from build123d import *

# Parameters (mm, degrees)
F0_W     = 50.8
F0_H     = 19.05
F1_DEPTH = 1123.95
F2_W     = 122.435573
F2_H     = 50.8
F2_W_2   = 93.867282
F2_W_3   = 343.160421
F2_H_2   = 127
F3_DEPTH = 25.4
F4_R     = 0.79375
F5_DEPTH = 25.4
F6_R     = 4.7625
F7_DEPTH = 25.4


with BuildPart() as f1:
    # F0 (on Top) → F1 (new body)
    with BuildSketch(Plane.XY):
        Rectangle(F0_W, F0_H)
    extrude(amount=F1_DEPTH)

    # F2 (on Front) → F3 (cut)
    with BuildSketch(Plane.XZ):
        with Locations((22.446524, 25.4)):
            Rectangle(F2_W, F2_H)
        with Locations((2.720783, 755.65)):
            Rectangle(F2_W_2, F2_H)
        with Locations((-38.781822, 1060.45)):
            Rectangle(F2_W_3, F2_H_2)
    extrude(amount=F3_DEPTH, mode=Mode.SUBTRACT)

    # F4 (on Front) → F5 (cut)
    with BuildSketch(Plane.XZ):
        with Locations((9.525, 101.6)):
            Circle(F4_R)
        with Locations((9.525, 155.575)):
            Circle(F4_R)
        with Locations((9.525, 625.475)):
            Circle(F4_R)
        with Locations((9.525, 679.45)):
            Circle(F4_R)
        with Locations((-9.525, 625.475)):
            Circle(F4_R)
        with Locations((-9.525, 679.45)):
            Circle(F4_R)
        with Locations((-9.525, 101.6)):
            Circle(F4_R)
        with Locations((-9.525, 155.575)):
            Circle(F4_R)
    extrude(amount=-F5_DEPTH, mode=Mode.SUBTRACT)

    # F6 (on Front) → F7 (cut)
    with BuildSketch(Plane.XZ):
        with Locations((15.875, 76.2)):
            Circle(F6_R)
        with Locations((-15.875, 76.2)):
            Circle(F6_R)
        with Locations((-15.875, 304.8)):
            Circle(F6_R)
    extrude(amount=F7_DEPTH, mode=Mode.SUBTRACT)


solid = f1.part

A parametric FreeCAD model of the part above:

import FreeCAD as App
import Part
import Sketcher
from FreeCAD import Vector
Q = App.Units.Quantity

doc = App.newDocument("Part")
body = doc.addObject("PartDesign::Body", "Body")

sketch1 = body.newObject("Sketcher::SketchObject", "Sketch")
sketch1.AttachmentSupport = (doc.getObject("XY_Plane"), [""])
sketch1.MapMode = "FlatFace"
sketch1.addGeometry(Part.LineSegment(Vector(-25, 10, 0), Vector(-25, -10, 0)), False)
sketch1.addGeometry(Part.LineSegment(Vector(-25, -10, 0), Vector(25, -10, 0)), False)
sketch1.addGeometry(Part.LineSegment(Vector(25, -10, 0), Vector(25, 10, 0)), False)
sketch1.addGeometry(Part.LineSegment(Vector(25, 10, 0), Vector(-25, 10, 0)), False)
sketch1.addConstraint(Sketcher.Constraint("Coincident", 0, 2, 1, 1))
sketch1.addConstraint(Sketcher.Constraint("Coincident", 1, 2, 2, 1))
sketch1.addConstraint(Sketcher.Constraint("Coincident", 2, 2, 3, 1))
sketch1.addConstraint(Sketcher.Constraint("Coincident", 3, 2, 0, 1))
sketch1.addConstraint(Sketcher.Constraint("Vertical", 0))
sketch1.addConstraint(Sketcher.Constraint("Horizontal", 1))
sketch1.addConstraint(Sketcher.Constraint("Vertical", 2))
sketch1.addConstraint(Sketcher.Constraint("Horizontal", 3))
sketch1.addConstraint(Sketcher.Constraint("Symmetric", 0, 2, 2, 2, -1, 1))
sketch1.addConstraint(Sketcher.Constraint("DistanceX", 1, 1, 1, 2, Q("2 in")))
sketch1.addConstraint(Sketcher.Constraint("DistanceY", 0, 2, 0, 1, Q("0.75 in")))
pad1 = body.newObject("PartDesign::Pad", "Pad")
pad1.Profile = sketch1
pad1.Length = Q("44.25 in")

sketch2 = body.newObject("Sketcher::SketchObject", "Sketch001")
sketch2.AttachmentSupport = (doc.getObject("XZ_Plane"), [""])
sketch2.MapMode = "FlatFace"
sketch2.addGeometry(Part.LineSegment(Vector(-39, 51, 0), Vector(-39, 0, 0)), False)
sketch2.addGeometry(Part.LineSegment(Vector(-39, 0, 0), Vector(84, 0, 0)), False)
sketch2.addGeometry(Part.LineSegment(Vector(84, 0, 0), Vector(84, 51, 0)), False)
sketch2.addGeometry(Part.LineSegment(Vector(84, 51, 0), Vector(-39, 51, 0)), False)
sketch2.addGeometry(Part.LineSegment(Vector(-44, 781, 0), Vector(-44, 730, 0)), False)
sketch2.addGeometry(Part.LineSegment(Vector(-44, 730, 0), Vector(50, 730, 0)), False)
sketch2.addGeometry(Part.LineSegment(Vector(50, 730, 0), Vector(50, 781, 0)), False)
sketch2.addGeometry(Part.LineSegment(Vector(50, 781, 0), Vector(-44, 781, 0)), False)
sketch2.addGeometry(Part.LineSegment(Vector(-210, 1124, 0), Vector(-210, 997, 0)), False)
sketch2.addGeometry(Part.LineSegment(Vector(-210, 997, 0), Vector(133, 997, 0)), False)
sketch2.addGeometry(Part.LineSegment(Vector(133, 997, 0), Vector(133, 1124, 0)), False)
sketch2.addGeometry(Part.LineSegment(Vector(133, 1124, 0), Vector(-210, 1124, 0)), False)
sketch2.addConstraint(Sketcher.Constraint("Coincident", 0, 2, 1, 1))
sketch2.addConstraint(Sketcher.Constraint("Coincident", 1, 2, 2, 1))
sketch2.addConstraint(Sketcher.Constraint("Coincident", 2, 2, 3, 1))
sketch2.addConstraint(Sketcher.Constraint("Coincident", 3, 2, 0, 1))
sketch2.addConstraint(Sketcher.Constraint("Coincident", 4, 2, 5, 1))
sketch2.addConstraint(Sketcher.Constraint("Coincident", 5, 2, 6, 1))
sketch2.addConstraint(Sketcher.Constraint("Coincident", 6, 2, 7, 1))
sketch2.addConstraint(Sketcher.Constraint("Coincident", 7, 2, 4, 1))
sketch2.addConstraint(Sketcher.Constraint("Coincident", 8, 2, 9, 1))
sketch2.addConstraint(Sketcher.Constraint("Coincident", 9, 2, 10, 1))
sketch2.addConstraint(Sketcher.Constraint("Coincident", 10, 2, 11, 1))
sketch2.addConstraint(Sketcher.Constraint("Coincident", 11, 2, 8, 1))
sketch2.addConstraint(Sketcher.Constraint("Vertical", 0))
sketch2.addConstraint(Sketcher.Constraint("Horizontal", 1))
sketch2.addConstraint(Sketcher.Constraint("Vertical", 2))
sketch2.addConstraint(Sketcher.Constraint("Horizontal", 3))
sketch2.addConstraint(Sketcher.Constraint("Vertical", 4))
sketch2.addConstraint(Sketcher.Constraint("Horizontal", 5))
sketch2.addConstraint(Sketcher.Constraint("Vertical", 6))
sketch2.addConstraint(Sketcher.Constraint("Horizontal", 7))
sketch2.addConstraint(Sketcher.Constraint("Vertical", 8))
sketch2.addConstraint(Sketcher.Constraint("Horizontal", 9))
sketch2.addConstraint(Sketcher.Constraint("Vertical", 10))
sketch2.addConstraint(Sketcher.Constraint("Horizontal", 11))
sketch2.addConstraint(Sketcher.Constraint("PointOnObject", 0, 2, -1))
sketch2.addConstraint(Sketcher.Constraint("Equal", 2, 4))
sketch2.addConstraint(Sketcher.Constraint("DistanceY", 0, 2, 0, 1, Q("2 in")))
sketch2.addConstraint(Sketcher.Constraint("DistanceY", 8, 2, 8, 1, Q("5 in")))
sketch2.addConstraint(Sketcher.Constraint("DistanceY", 7, 2, 8, 2, Q("8.5 in")))
sketch2.addConstraint(Sketcher.Constraint("DistanceY", -1, 1, 4, 2, Q("28.75 in")))
sketch2.addConstraint(Sketcher.Constraint("DistanceX", 5, 1, 5, 2, Q("93.867282 mm")))
sketch2.addConstraint(Sketcher.Constraint("DistanceX", 9, 1, 9, 2, Q("343.160421 mm")))
sketch2.addConstraint(Sketcher.Constraint("DistanceX", 1, 1, 1, 2, Q("122.435573 mm")))
sketch2.addConstraint(Sketcher.Constraint("DistanceX", -1, 1, 1, 2, Q("83.66431 mm")))
sketch2.addConstraint(Sketcher.Constraint("DistanceX", -1, 1, 9, 2, Q("132.798388 mm")))
sketch2.addConstraint(Sketcher.Constraint("DistanceX", 4, 2, 2, 2, Q("127.877168 mm")))
pocket1 = body.newObject("PartDesign::Pocket", "Pocket")
pocket1.Profile = sketch2
pocket1.Length = Q("1 in")
pocket1.Reversed = True

sketch3 = body.newObject("Sketcher::SketchObject", "Sketch002")
sketch3.AttachmentSupport = (doc.getObject("XZ_Plane"), [""])
sketch3.MapMode = "FlatFace"
sketch3.addGeometry(Part.Circle(Vector(9.5, 101.6, 0), Vector(0, 0, 1), 0.8), False)
sketch3.addGeometry(Part.Circle(Vector(9.5, 155.6, 0), Vector(0, 0, 1), 0.8), False)
sketch3.addGeometry(Part.Circle(Vector(9.5, 625.5, 0), Vector(0, 0, 1), 0.8), False)
sketch3.addGeometry(Part.Circle(Vector(9.5, 679.5, 0), Vector(0, 0, 1), 0.8), False)
sketch3.addGeometry(Part.Circle(Vector(-9.5, 625.5, 0), Vector(0, 0, 1), 0.8), False)
sketch3.addGeometry(Part.Circle(Vector(-9.5, 679.5, 0), Vector(0, 0, 1), 0.8), False)
sketch3.addGeometry(Part.Circle(Vector(-9.5, 101.6, 0), Vector(0, 0, 1), 0.8), False)
sketch3.addGeometry(Part.Circle(Vector(-9.5, 155.6, 0), Vector(0, 0, 1), 0.8), False)
sketch3.addConstraint(Sketcher.Constraint("Equal", 0, 1))
sketch3.addConstraint(Sketcher.Constraint("Equal", 1, 2))
sketch3.addConstraint(Sketcher.Constraint("Equal", 2, 3))
sketch3.addConstraint(Sketcher.Constraint("Equal", 3, 4))
sketch3.addConstraint(Sketcher.Constraint("Equal", 4, 5))
sketch3.addConstraint(Sketcher.Constraint("Equal", 5, 6))
sketch3.addConstraint(Sketcher.Constraint("Equal", 6, 7))
sketch3.addConstraint(Sketcher.Constraint("Symmetric", 2, 3, 4, 3, -2))
sketch3.addConstraint(Sketcher.Constraint("Symmetric", 3, 3, 5, 3, -2))
sketch3.addConstraint(Sketcher.Constraint("Symmetric", 0, 3, 6, 3, -2))
sketch3.addConstraint(Sketcher.Constraint("Symmetric", 1, 3, 7, 3, -2))
sketch3.addConstraint(Sketcher.Constraint("Vertical", 0, 3, 1, 3))
sketch3.addConstraint(Sketcher.Constraint("Vertical", 1, 3, 2, 3))
sketch3.addConstraint(Sketcher.Constraint("Vertical", 2, 3, 3, 3))
sketch3.addConstraint(Sketcher.Constraint("Diameter", 0, Q("0.0625 in")))
sketch3.addConstraint(Sketcher.Constraint("DistanceY", -1, 1, 0, 3, Q("4 in")))
sketch3.addConstraint(Sketcher.Constraint("DistanceY", 1, 3, 2, 3, Q("18.5 in")))
sketch3.addConstraint(Sketcher.Constraint("DistanceY", -1, 1, 3, 3, Q("26.75 in")))
sketch3.addConstraint(Sketcher.Constraint("DistanceX", 4, 3, 2, 3, Q("0.75 in")))
sketch3.addConstraint(Sketcher.Constraint("DistanceY", -1, 1, 1, 3, Q("6.125 in")))
pocket2 = body.newObject("PartDesign::Pocket", "Pocket001")
pocket2.Profile = sketch3
pocket2.Length = Q("1 in")

sketch4 = body.newObject("Sketcher::SketchObject", "Sketch003")
sketch4.AttachmentSupport = (doc.getObject("XZ_Plane"), [""])
sketch4.MapMode = "FlatFace"
sketch4.addGeometry(Part.Circle(Vector(15.9, 76.2, 0), Vector(0, 0, 1), 4.8), False)
sketch4.addGeometry(Part.Circle(Vector(-15.9, 76.2, 0), Vector(0, 0, 1), 4.8), False)
sketch4.addGeometry(Part.Circle(Vector(-15.9, 304.8, 0), Vector(0, 0, 1), 4.8), False)
sketch4.addConstraint(Sketcher.Constraint("Equal", 0, 1))
sketch4.addConstraint(Sketcher.Constraint("Equal", 1, 2))
sketch4.addConstraint(Sketcher.Constraint("Symmetric", 0, 3, 1, 3, -2))
sketch4.addConstraint(Sketcher.Constraint("Vertical", 1, 3, 2, 3))
sketch4.addConstraint(Sketcher.Constraint("Diameter", 0, Q("0.375 in")))
sketch4.addConstraint(Sketcher.Constraint("DistanceY", -1, 1, 0, 3, Q("3 in")))
sketch4.addConstraint(Sketcher.Constraint("DistanceY", -1, 1, 2, 3, Q("12 in")))
sketch4.addConstraint(Sketcher.Constraint("DistanceX", 1, 3, 0, 3, Q("1.25 in")))
pocket3 = body.newObject("PartDesign::Pocket", "Pocket002")
pocket3.Profile = sketch4
pocket3.Length = Q("1 in")
pocket3.Reversed = True

doc.recompute()
